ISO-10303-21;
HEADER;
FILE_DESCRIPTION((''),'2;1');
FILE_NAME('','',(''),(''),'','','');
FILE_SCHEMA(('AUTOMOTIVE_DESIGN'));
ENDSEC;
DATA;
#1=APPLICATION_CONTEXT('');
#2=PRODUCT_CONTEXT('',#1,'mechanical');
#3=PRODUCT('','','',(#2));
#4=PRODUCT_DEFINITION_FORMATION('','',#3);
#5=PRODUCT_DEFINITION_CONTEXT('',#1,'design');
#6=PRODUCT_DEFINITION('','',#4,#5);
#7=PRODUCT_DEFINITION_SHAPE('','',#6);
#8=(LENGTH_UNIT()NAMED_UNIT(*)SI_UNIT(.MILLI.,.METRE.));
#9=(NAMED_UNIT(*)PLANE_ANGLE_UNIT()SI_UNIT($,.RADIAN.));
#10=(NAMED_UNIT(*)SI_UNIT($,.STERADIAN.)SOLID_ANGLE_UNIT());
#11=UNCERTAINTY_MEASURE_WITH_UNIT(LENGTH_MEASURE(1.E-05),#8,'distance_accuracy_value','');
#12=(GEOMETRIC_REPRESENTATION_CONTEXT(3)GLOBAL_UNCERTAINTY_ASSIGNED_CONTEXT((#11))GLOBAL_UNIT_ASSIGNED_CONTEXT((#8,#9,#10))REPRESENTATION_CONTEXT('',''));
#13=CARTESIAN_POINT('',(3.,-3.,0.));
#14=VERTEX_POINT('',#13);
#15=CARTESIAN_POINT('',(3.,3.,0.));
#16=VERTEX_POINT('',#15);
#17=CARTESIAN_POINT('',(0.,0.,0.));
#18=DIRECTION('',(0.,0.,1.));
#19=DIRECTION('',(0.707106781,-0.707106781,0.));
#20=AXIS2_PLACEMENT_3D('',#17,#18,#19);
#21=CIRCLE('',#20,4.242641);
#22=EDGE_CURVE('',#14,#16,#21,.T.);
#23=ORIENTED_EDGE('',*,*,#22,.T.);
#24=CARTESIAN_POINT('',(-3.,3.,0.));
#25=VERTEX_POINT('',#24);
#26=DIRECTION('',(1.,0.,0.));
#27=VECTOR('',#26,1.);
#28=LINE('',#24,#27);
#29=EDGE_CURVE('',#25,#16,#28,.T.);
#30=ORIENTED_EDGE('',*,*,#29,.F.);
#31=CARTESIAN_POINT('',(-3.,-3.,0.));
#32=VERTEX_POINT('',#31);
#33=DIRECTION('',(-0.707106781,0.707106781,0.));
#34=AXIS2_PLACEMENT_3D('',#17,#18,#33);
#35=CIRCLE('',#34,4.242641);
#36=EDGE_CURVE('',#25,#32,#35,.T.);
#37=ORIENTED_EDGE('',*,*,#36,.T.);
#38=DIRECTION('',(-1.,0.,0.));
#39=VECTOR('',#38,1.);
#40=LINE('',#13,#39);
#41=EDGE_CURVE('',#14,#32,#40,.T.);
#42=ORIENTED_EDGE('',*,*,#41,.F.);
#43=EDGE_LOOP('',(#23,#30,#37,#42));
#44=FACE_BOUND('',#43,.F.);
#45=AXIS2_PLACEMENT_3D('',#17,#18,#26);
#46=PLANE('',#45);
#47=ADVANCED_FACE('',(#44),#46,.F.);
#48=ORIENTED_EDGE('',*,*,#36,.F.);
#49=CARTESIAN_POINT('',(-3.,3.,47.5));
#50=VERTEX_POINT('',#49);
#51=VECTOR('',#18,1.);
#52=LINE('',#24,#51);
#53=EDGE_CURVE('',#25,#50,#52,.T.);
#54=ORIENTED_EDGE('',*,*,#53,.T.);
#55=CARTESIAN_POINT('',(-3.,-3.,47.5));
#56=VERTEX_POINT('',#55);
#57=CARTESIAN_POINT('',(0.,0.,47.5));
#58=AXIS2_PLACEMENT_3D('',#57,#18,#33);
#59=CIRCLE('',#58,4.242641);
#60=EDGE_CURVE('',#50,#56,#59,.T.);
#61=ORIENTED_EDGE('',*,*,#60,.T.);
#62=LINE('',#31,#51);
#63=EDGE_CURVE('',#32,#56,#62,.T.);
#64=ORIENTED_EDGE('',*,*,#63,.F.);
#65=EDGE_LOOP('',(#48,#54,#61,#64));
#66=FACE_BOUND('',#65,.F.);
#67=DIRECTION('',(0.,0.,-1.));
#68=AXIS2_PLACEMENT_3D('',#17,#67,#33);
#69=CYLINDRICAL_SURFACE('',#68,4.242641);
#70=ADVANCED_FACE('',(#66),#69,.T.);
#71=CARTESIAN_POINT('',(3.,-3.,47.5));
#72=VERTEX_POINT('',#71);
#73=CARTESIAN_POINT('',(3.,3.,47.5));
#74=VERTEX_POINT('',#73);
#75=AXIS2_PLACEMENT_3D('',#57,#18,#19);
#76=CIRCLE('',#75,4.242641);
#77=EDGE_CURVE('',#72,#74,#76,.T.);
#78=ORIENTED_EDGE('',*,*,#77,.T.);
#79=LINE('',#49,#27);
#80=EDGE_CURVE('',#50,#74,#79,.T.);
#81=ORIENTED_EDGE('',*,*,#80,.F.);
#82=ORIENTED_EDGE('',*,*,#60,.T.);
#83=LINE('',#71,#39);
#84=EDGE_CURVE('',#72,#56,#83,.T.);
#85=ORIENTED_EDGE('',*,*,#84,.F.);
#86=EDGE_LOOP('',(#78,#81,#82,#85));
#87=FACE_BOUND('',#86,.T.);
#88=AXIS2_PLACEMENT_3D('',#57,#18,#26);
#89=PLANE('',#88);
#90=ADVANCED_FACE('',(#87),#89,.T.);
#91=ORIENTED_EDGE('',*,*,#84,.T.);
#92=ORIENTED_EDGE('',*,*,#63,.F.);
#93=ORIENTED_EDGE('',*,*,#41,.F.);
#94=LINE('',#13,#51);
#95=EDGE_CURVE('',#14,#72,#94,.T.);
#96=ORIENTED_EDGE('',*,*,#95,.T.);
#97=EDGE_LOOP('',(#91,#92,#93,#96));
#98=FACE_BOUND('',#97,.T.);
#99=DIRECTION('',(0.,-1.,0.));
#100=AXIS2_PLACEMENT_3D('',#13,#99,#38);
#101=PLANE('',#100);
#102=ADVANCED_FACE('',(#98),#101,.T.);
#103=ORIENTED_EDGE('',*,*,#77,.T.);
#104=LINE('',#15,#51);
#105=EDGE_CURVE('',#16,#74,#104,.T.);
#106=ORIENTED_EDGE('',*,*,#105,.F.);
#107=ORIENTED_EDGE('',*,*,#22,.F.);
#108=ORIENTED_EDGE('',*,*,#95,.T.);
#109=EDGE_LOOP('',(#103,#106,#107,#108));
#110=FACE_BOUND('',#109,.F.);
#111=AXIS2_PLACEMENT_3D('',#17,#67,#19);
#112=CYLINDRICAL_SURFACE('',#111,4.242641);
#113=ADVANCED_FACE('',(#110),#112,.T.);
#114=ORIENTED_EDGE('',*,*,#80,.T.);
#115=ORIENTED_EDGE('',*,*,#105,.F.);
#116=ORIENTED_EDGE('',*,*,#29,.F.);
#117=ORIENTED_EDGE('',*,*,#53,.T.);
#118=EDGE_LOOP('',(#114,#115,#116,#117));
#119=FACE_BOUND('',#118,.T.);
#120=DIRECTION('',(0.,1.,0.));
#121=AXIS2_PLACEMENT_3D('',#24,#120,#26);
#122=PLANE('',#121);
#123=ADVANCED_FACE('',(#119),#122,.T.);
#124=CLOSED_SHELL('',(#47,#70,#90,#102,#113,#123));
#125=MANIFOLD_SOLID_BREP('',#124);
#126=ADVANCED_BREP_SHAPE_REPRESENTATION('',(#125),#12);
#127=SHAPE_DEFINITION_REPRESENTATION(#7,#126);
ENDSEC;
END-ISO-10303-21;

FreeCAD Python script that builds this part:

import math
import FreeCAD as App
import Part
import Sketcher
from FreeCAD import Vector
Q = App.Units.Quantity

doc = App.newDocument("Part")
body = doc.addObject("PartDesign::Body", "Body")

sketch1 = body.newObject("Sketcher::SketchObject", "Sketch")
sketch1.AttachmentSupport = (doc.getObject("XY_Plane"), [""])
sketch1.MapMode = "FlatFace"
sketch1.addGeometry([
    Part.LineSegment(Vector(3, 3, 0), Vector(-3, 3, 0)),
    Part.ArcOfCircle(Part.Circle(Vector(0, 0, 0), Vector(0, 0, 1), 4.242641), math.radians(135), math.radians(225)),
    Part.LineSegment(Vector(-3, -3, 0), Vector(3, -3, 0)),
    Part.ArcOfCircle(Part.Circle(Vector(0, 0, 0), Vector(0, 0, 1), 4.242641), math.radians(-45), math.radians(45)),
], False)
sketch1.addConstraint([
    Sketcher.Constraint("Coincident", 0, 2, 1, 1),
    Sketcher.Constraint("Coincident", 1, 2, 2, 1),
    Sketcher.Constraint("Coincident", 2, 2, 3, 1),
    Sketcher.Constraint("Coincident", 3, 2, 0, 1),
    Sketcher.Constraint("Horizontal", 0),
    Sketcher.Constraint("Horizontal", 2),
    Sketcher.Constraint("Coincident", 1, 3, -1, 1),
    Sketcher.Constraint("Coincident", 3, 3, -1, 1),
    Sketcher.Constraint("Equal", 1, 3),
    Sketcher.Constraint("Vertical", 0, 2, 1, 2),
    Sketcher.Constraint("DistanceX", 0, 2, 0, 1, Q("6 mm")),
    Sketcher.Constraint("DistanceY", 1, 2, 0, 2, Q("6 mm")),
])
pad1 = body.newObject("PartDesign::Pad", "Pad")
pad1.Profile = sketch1
pad1.Length = 47.5

doc.recompute()
